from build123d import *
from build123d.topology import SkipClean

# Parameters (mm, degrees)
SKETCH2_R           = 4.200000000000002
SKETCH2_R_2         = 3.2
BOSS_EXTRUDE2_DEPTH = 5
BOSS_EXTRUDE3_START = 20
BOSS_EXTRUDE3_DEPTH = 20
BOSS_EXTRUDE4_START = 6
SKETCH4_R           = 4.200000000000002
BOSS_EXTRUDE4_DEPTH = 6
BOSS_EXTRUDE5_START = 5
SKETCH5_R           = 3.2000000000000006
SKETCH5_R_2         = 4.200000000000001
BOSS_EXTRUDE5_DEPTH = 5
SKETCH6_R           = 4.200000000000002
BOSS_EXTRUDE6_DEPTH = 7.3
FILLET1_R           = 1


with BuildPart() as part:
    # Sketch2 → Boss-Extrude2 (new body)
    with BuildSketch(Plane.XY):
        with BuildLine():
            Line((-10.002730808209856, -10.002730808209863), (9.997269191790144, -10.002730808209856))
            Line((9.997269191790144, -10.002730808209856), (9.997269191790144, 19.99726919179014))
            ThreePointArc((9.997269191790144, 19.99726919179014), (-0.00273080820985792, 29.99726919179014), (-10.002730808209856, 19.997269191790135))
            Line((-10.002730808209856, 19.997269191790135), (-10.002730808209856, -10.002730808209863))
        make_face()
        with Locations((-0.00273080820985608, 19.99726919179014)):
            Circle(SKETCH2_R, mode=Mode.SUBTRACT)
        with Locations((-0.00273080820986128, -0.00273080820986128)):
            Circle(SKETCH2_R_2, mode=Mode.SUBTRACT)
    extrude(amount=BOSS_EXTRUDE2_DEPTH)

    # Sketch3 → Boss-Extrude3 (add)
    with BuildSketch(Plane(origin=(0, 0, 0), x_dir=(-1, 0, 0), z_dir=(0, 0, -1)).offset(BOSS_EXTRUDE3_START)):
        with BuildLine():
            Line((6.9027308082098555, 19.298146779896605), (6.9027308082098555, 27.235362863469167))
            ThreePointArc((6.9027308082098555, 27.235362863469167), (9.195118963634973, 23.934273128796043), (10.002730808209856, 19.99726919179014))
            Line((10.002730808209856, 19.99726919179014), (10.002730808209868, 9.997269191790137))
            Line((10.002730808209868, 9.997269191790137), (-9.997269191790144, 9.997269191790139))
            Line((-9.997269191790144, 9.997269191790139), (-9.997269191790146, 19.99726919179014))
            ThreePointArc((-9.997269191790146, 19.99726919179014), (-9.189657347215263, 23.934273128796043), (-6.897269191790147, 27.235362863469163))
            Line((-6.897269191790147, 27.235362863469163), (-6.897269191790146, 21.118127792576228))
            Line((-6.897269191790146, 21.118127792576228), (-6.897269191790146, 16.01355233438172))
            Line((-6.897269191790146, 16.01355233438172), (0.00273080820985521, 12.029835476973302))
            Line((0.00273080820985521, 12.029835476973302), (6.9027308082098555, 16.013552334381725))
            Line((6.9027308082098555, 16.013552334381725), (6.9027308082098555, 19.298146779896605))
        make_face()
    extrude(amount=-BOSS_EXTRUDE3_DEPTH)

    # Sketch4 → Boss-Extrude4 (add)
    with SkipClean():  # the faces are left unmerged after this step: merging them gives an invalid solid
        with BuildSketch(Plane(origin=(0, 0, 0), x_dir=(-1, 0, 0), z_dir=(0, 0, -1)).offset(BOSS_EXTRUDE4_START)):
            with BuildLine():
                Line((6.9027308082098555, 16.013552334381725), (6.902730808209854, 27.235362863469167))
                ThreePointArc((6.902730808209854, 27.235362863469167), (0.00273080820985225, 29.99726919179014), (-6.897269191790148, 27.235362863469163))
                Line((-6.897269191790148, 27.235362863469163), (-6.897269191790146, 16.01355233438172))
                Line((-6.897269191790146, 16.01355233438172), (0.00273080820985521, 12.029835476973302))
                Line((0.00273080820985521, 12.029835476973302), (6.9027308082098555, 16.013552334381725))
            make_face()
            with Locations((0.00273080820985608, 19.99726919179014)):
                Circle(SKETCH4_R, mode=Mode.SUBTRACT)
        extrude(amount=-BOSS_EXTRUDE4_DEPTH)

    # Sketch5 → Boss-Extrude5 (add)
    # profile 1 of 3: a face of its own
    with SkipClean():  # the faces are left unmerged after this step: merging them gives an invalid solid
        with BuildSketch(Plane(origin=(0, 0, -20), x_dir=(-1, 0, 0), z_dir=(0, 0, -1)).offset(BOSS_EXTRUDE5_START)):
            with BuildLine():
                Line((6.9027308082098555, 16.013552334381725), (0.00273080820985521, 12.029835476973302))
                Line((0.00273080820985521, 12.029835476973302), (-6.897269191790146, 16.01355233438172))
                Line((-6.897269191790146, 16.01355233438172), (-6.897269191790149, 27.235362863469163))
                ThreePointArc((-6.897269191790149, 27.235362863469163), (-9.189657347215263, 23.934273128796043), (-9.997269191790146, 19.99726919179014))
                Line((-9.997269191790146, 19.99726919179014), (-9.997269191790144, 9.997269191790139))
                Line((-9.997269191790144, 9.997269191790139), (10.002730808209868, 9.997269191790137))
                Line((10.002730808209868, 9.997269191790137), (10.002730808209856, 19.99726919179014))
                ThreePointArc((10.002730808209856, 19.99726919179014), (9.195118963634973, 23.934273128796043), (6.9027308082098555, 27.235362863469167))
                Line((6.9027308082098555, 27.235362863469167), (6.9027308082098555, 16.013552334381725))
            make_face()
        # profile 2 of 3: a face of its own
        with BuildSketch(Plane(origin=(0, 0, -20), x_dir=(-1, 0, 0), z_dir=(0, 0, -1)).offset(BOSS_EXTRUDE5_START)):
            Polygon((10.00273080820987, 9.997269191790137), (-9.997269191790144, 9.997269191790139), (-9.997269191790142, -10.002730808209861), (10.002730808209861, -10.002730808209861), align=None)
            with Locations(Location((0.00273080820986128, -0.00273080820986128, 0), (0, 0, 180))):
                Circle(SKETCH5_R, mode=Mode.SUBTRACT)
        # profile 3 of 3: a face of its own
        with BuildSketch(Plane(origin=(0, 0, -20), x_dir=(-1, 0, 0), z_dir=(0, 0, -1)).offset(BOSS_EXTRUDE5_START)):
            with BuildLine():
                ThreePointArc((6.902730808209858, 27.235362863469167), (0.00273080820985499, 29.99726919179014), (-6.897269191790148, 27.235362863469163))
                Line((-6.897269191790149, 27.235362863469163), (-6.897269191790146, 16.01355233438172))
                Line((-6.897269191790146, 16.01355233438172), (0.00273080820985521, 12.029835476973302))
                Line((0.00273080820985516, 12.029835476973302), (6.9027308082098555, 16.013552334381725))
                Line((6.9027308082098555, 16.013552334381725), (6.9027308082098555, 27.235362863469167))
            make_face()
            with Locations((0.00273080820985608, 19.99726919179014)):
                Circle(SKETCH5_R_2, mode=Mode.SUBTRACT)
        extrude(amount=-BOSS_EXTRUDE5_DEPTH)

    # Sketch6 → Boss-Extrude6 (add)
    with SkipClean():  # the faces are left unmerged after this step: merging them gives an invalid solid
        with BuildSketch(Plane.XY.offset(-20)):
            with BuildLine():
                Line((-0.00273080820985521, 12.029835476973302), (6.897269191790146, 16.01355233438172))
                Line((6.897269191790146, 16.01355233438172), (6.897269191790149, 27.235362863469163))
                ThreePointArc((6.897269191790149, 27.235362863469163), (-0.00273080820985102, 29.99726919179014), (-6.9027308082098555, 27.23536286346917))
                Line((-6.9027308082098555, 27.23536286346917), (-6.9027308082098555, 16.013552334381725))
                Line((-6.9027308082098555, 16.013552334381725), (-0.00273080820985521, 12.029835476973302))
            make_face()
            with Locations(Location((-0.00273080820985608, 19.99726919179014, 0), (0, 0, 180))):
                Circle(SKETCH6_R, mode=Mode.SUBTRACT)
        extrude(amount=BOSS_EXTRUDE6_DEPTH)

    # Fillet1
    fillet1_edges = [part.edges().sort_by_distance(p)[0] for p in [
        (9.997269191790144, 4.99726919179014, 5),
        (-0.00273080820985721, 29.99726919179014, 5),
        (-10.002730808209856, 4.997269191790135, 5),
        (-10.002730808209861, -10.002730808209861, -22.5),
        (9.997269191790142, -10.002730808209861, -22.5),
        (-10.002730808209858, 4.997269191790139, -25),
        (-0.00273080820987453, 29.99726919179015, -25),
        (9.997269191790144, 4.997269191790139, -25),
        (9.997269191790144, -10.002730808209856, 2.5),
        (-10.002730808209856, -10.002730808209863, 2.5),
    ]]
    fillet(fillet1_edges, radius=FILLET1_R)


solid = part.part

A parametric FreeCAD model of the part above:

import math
import FreeCAD as App
import Part
import Sketcher

V = App.Vector
Q = App.Units.Quantity


def edges_at(feature, points):
    """Names of the edges that pass closest to the given points."""
    edges = feature.Shape.Edges
    near = lambda p: min(range(len(edges)), key=lambda i: edges[i].distToShape(Part.Vertex(*p))[0])
    return sorted({f"Edge{near(p) + 1}" for p in points})

doc = App.newDocument("Part")
body = doc.addObject("PartDesign::Body", "Body")

sketch1 = body.newObject("Sketcher::SketchObject", "Sketch")
sketch1.AttachmentSupport = (doc.getObject("XY_Plane"), [""])
sketch1.MapMode = "FlatFace"
sketch1.addGeometry([
    Part.LineSegment(V(-10, -10, 0), V(10, -10, 0)),
    Part.LineSegment(V(10, -10, 0), V(10, 20, 0)),
    Part.ArcOfCircle(Part.Circle(V(0, 20, 0), V(0, 0, 1), 10), math.radians(0), math.radians(180)),
    Part.LineSegment(V(-10, 20, 0), V(-10, -10, 0)),
    Part.Circle(V(0, 0, 0), V(0, 0, 1), 3.2),
    Part.Circle(V(0, 20, 0), V(0, 0, 1), 4.2),
], False)
sketch1.addConstraint([
    Sketcher.Constraint("Coincident", 0, 2, 1, 1),
    Sketcher.Constraint("Tangent", 1, 2, 2, 1),
    Sketcher.Constraint("Tangent", 2, 2, 3, 1),
    Sketcher.Constraint("Coincident", 3, 2, 0, 1),
    Sketcher.Constraint("Horizontal", 0),
    Sketcher.Constraint("Vertical", 1),
    Sketcher.Constraint("Vertical", 3),
    Sketcher.Constraint("Coincident", 5, 3, 2, 3),
    Sketcher.Constraint("Vertical", 2, 3, 4, 3),
    Sketcher.Constraint("Radius", 2, Q("10 mm")),
    Sketcher.Constraint("Diameter", 4, Q("6.4 mm")),
    Sketcher.Constraint("Diameter", 5, Q("8.4 mm")),
    Sketcher.Constraint("DistanceY", 1, 1, 1, 2, Q("30 mm")),
    Sketcher.Constraint("DistanceY", 4, 3, 2, 3, Q("20 mm")),
    Sketcher.Constraint("DistanceX", 2, 3, -1, 1, Q("0.002731 mm")),
    Sketcher.Constraint("DistanceY", -1, 1, 2, 3, Q("19.997269 mm")),
])
pad1 = body.newObject("PartDesign::Pad", "Pad")
pad1.Profile = sketch1
pad1.Length = 5

sketch2 = body.newObject("Sketcher::SketchObject", "Sketch001")
sketch2.AttachmentSupport = (doc.getObject("XY_Plane"), [""])
sketch2.MapMode = "FlatFace"
sketch2.AttachmentOffset = App.Placement(V(0, 0, -20), App.Rotation())
sketch2.addGeometry([
    Part.ArcOfCircle(Part.Circle(V(0, 20, 0), V(0, 0, 1), 10), math.radians(134), math.radians(180)),
    Part.LineSegment(V(-7, 27, 0), V(-7, 16, 0)),
    Part.LineSegment(V(-7, 16, 0), V(0, 12, 0)),
    Part.LineSegment(V(0, 12, 0), V(7, 16, 0)),
    Part.LineSegment(V(7, 16, 0), V(7, 27, 0)),
    Part.ArcOfCircle(Part.Circle(V(0, 20, 0), V(0, 0, 1), 10), math.radians(0), math.radians(46)),
    Part.LineSegment(V(10, 20, 0), V(10, 10, 0)),
    Part.LineSegment(V(10, 10, 0), V(-10, 10, 0)),
    Part.LineSegment(V(-10, 10, 0), V(-10, 20, 0)),
], False)
sketch2.addConstraint([
    Sketcher.Constraint("Coincident", 0, 1, 1, 1),
    Sketcher.Constraint("Coincident", 1, 2, 2, 1),
    Sketcher.Constraint("Coincident", 2, 2, 3, 1),
    Sketcher.Constraint("Coincident", 3, 2, 4, 1),
    Sketcher.Constraint("Coincident", 4, 2, 5, 2),
    Sketcher.Constraint("Tangent", 5, 1, 6, 1),
    Sketcher.Constraint("Coincident", 6, 2, 7, 1),
    Sketcher.Constraint("Coincident", 7, 2, 8, 1),
    Sketcher.Constraint("Tangent", 8, 2, 0, 2),
    Sketcher.Constraint("Vertical", 1),
    Sketcher.Constraint("Vertical", 4),
    Sketcher.Constraint("Vertical", 6),
    Sketcher.Constraint("Horizontal", 7),
    Sketcher.Constraint("Vertical", 8),
    Sketcher.Constraint("Coincident", 5, 3, 0, 3),
    Sketcher.Constraint("Equal", 0, 5),
    Sketcher.Constraint("Horizontal", 1, 2, 3, 2),
    Sketcher.Constraint("Horizontal", 0, 1, 4, 2),
    Sketcher.Constraint("Vertical", 5, 3, 2, 2),
    Sketcher.Constraint("Radius", 0, Q("10 mm")),
    Sketcher.Constraint("DistanceY", 6, 2, 6, 1, Q("10 mm")),
    Sketcher.Constraint("Angle", 2, Q("-30 deg")),
    Sketcher.Constraint("DistanceX", 0, 1, 0, 3, Q("6.9 mm")),
    Sketcher.Constraint("DistanceY", 1, 2, 1, 1, Q("11.221811 mm")),
    Sketcher.Constraint("DistanceX", 0, 3, -1, 1, Q("0.002731 mm")),
    Sketcher.Constraint("DistanceY", -1, 1, 0, 3, Q("19.997269 mm")),
])
pad2 = body.newObject("PartDesign::Pad", "Pad001")
pad2.Profile = sketch2
pad2.Length = 20

sketch3 = body.newObject("Sketcher::SketchObject", "Sketch002")
sketch3.AttachmentSupport = (doc.getObject("XY_Plane"), [""])
sketch3.MapMode = "FlatFace"
sketch3.AttachmentOffset = App.Placement(V(0, 0, -6), App.Rotation())
sketch3.addGeometry([
    Part.LineSegment(V(-6.9, 16, 0), V(-6.9, 27.2, 0)),
    Part.ArcOfCircle(Part.Circle(V(0, 20, 0), V(0, 0, 1), 10), math.radians(46), math.radians(134)),
    Part.LineSegment(V(6.9, 27.2, 0), V(6.9, 16, 0)),
    Part.LineSegment(V(6.9, 16, 0), V(0, 12, 0)),
    Part.LineSegment(V(0, 12, 0), V(-6.9, 16, 0)),
    Part.Circle(V(0, 20, 0), V(0, 0, 1), 4.2),
], False)
sketch3.addConstraint([
    Sketcher.Constraint("Coincident", 0, 2, 1, 2),
    Sketcher.Constraint("Coincident", 1, 1, 2, 1),
    Sketcher.Constraint("Coincident", 2, 2, 3, 1),
    Sketcher.Constraint("Coincident", 3, 2, 4, 1),
    Sketcher.Constraint("Coincident", 4, 2, 0, 1),
    Sketcher.Constraint("Vertical", 0),
    Sketcher.Constraint("Vertical", 2),
    Sketcher.Constraint("Coincident", 5, 3, 1, 3),
    Sketcher.Constraint("Horizontal", 0, 2, 1, 1),
    Sketcher.Constraint("Horizontal", 2, 2, 4, 2),
    Sketcher.Constraint("Vertical", 5, 3, 3, 2),
    Sketcher.Constraint("Radius", 1, Q("10 mm")),
    Sketcher.Constraint("Diameter", 5, Q("8.4 mm")),
    Sketcher.Constraint("Angle", 3, Q("-150 deg")),
    Sketcher.Constraint("DistanceX", 0, 2, 1, 3, Q("6.9 mm")),
    Sketcher.Constraint("DistanceY", 0, 1, 0, 2, Q("11.221811 mm")),
    Sketcher.Constraint("DistanceX", 1, 3, -1, 1, Q("0.002731 mm")),
    Sketcher.Constraint("DistanceY", -1, 1, 1, 3, Q("19.997269 mm")),
])
pad3 = body.newObject("PartDesign::Pad", "Pad002")
pad3.Profile = sketch3
pad3.Length = 6

sketch4 = body.newObject("Sketcher::SketchObject", "Sketch003")
sketch4.AttachmentSupport = (doc.getObject("XY_Plane"), [""])
sketch4.MapMode = "FlatFace"
sketch4.AttachmentOffset = App.Placement(V(0, 0, -25), App.Rotation())
sketch4.addGeometry([
    Part.LineSegment(V(10, 20, 0), V(10, -10, 0)),
    Part.LineSegment(V(10, -10, 0), V(-10, -10, 0)),
    Part.LineSegment(V(-10, -10, 0), V(-10, 20, 0)),
    Part.ArcOfCircle(Part.Circle(V(0, 20, 0), V(0, 0, 1), 10), math.radians(0), math.radians(180)),
    Part.Circle(V(0, 20, 0), V(0, 0, 1), 4.2),
    Part.Circle(V(0, 0, 0), V(0, 0, 1), 3.2),
], False)
sketch4.addConstraint([
    Sketcher.Constraint("Coincident", 0, 2, 1, 1),
    Sketcher.Constraint("Coincident", 1, 2, 2, 1),
    Sketcher.Constraint("Tangent", 2, 2, 3, 2),
    Sketcher.Constraint("Tangent", 3, 1, 0, 1),
    Sketcher.Constraint("Vertical", 0),
    Sketcher.Constraint("Horizontal", 1),
    Sketcher.Constraint("Vertical", 2),
    Sketcher.Constraint("Coincident", 4, 3, 3, 3),
    Sketcher.Constraint("Vertical", 4, 3, 5, 3),
    Sketcher.Constraint("Radius", 3, Q("10 mm")),
    Sketcher.Constraint("Diameter", 4, Q("8.4 mm")),
    Sketcher.Constraint("Diameter", 5, Q("6.4 mm")),
    Sketcher.Constraint("DistanceY", 0, 2, 0, 1, Q("30 mm")),
    Sketcher.Constraint("DistanceY", 5, 3, 3, 3, Q("20 mm")),
    Sketcher.Constraint("DistanceX", 3, 3, -1, 1, Q("0.002731 mm")),
    Sketcher.Constraint("DistanceY", -1, 1, 3, 3, Q("19.997269 mm")),
])
pad4 = body.newObject("PartDesign::Pad", "Pad003")
pad4.Profile = sketch4
pad4.Length = 5

sketch5 = body.newObject("Sketcher::SketchObject", "Sketch004")
sketch5.AttachmentSupport = (doc.getObject("XY_Plane"), [""])
sketch5.MapMode = "FlatFace"
sketch5.AttachmentOffset = App.Placement(V(0, 0, -20), App.Rotation())
sketch5.addGeometry([
    Part.LineSegment(V(0, 12, 0), V(6.9, 16, 0)),
    Part.LineSegment(V(6.9, 16, 0), V(6.9, 27.2, 0)),
    Part.ArcOfCircle(Part.Circle(V(0, 20, 0), V(0, 0, 1), 10), math.radians(46), math.radians(134)),
    Part.LineSegment(V(-6.9, 27.2, 0), V(-6.9, 16, 0)),
    Part.LineSegment(V(-6.9, 16, 0), V(0, 12, 0)),
    Part.Circle(V(0, 20, 0), V(0, 0, 1), 4.2),
], False)
sketch5.addConstraint([
    Sketcher.Constraint("Coincident", 0, 2, 1, 1),
    Sketcher.Constraint("Coincident", 1, 2, 2, 1),
    Sketcher.Constraint("Coincident", 2, 2, 3, 1),
    Sketcher.Constraint("Coincident", 3, 2, 4, 1),
    Sketcher.Constraint("Coincident", 4, 2, 0, 1),
    Sketcher.Constraint("Vertical", 1),
    Sketcher.Constraint("Vertical", 3),
    Sketcher.Constraint("Coincident", 5, 3, 2, 3),
    Sketcher.Constraint("Horizontal", 1, 2, 2, 2),
    Sketcher.Constraint("Horizontal", 0, 2, 3, 2),
    Sketcher.Constraint("Vertical", 5, 3, 4, 2),
    Sketcher.Constraint("Radius", 2, Q("10 mm")),
    Sketcher.Constraint("Diameter", 5, Q("8.4 mm")),
    Sketcher.Constraint("Angle", 0, Q("30 deg")),
    Sketcher.Constraint("DistanceX", 2, 3, 0, 2, Q("6.9 mm")),
    Sketcher.Constraint("DistanceY", 1, 1, 1, 2, Q("11.221811 mm")),
    Sketcher.Constraint("DistanceX", 2, 3, -1, 1, Q("0.002731 mm")),
    Sketcher.Constraint("DistanceY", -1, 1, 2, 3, Q("19.997269 mm")),
])
pad5 = body.newObject("PartDesign::Pad", "Pad004")
pad5.Profile = sketch5
pad5.Length = 7.3
doc.recompute()

fillet = body.newObject("PartDesign::Fillet", "Fillet")
fillet.Base = (pad5, edges_at(pad5, [
    (9.997, 4.997, 5),
    (-0.003, 29.997, 5),
    (-10.003, 4.997, 5),
    (-10.003, -10.003, -22.5),
    (9.997, -10.003, -22.5),
    (-10.003, -0.003, -25),
    (-0.003, 29.997, -25),
    (9.997, -0.003, -25),
    (9.997, -10.003, 2.5),
    (-10.003, -10.003, 2.5),
]))
fillet.Radius = 1

doc.recompute()
